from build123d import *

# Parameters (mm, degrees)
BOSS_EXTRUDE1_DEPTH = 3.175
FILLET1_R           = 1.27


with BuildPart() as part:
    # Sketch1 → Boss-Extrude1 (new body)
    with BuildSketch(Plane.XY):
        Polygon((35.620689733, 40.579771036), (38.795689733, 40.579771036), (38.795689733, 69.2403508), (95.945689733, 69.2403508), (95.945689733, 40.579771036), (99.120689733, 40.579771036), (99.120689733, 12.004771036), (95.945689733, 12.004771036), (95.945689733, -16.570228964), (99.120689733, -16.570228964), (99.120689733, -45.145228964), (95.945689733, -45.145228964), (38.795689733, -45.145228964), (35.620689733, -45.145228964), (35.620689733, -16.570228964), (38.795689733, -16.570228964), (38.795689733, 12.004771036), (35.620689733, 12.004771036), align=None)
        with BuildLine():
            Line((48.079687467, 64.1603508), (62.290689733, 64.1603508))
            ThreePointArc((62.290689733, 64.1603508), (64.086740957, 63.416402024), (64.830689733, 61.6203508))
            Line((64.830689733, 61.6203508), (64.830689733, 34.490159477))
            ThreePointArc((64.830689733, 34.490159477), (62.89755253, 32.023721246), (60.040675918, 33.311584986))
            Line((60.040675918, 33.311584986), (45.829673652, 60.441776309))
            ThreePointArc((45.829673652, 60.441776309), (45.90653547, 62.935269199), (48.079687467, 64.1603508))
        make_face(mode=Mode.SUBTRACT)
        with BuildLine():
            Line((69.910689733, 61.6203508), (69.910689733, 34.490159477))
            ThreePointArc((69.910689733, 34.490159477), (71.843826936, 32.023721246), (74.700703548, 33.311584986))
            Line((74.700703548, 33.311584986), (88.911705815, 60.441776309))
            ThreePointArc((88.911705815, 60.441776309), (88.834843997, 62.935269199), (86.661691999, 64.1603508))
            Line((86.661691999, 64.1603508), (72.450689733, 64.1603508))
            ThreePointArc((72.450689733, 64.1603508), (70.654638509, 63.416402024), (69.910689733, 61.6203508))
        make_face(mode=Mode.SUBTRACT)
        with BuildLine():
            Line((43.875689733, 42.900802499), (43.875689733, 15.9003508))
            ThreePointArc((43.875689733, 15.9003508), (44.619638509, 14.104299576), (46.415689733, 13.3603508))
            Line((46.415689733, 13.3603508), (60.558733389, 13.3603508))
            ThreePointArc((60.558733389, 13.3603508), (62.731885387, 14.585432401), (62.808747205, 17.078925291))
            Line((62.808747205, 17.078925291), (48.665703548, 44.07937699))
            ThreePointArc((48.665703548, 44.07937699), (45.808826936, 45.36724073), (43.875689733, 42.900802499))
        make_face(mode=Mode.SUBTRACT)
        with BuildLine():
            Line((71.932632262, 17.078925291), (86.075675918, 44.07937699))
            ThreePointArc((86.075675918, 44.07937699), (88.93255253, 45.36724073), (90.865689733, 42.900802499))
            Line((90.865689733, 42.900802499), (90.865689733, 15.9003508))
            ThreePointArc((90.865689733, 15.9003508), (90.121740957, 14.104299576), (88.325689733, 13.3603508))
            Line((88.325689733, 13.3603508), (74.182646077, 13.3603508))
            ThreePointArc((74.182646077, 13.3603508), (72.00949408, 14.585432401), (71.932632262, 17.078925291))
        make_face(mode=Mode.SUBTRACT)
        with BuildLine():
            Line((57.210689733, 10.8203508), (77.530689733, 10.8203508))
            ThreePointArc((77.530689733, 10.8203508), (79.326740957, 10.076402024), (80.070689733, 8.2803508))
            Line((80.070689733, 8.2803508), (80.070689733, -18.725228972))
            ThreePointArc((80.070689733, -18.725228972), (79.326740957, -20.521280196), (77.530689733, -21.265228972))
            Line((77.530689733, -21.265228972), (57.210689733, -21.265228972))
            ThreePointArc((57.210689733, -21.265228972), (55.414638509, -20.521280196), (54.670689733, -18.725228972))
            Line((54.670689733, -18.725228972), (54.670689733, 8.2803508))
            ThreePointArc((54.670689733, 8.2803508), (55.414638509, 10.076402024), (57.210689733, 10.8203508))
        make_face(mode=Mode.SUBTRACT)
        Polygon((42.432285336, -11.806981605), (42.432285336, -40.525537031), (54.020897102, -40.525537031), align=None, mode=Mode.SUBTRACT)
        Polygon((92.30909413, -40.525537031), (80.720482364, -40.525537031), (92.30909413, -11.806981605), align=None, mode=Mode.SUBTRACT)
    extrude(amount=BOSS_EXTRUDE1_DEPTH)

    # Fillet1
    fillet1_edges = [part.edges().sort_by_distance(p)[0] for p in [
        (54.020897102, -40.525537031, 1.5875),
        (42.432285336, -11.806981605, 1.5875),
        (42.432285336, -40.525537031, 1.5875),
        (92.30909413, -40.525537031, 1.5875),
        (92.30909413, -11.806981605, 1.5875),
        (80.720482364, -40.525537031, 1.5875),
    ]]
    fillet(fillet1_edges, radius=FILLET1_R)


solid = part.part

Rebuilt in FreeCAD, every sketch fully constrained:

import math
import FreeCAD as App
import Part
import Sketcher
from FreeCAD import Vector
Q = App.Units.Quantity


def edges_at(feature, points):
    """Names of the edges that pass closest to the given points."""
    edges = feature.Shape.Edges
    near = lambda p: min(range(len(edges)), key=lambda i: edges[i].distToShape(Part.Vertex(*p))[0])
    return sorted({f"Edge{near(p) + 1}" for p in points})

doc = App.newDocument("Part")
body = doc.addObject("PartDesign::Body", "Body")

sketch1 = body.newObject("Sketcher::SketchObject", "Sketch")
sketch1.AttachmentSupport = (doc.getObject("XY_Plane"), [""])
sketch1.MapMode = "FlatFace"
sketch1.addGeometry([
    Part.LineSegment(Vector(38.8, 40.6, 0), Vector(35.6, 40.6, 0)),
    Part.LineSegment(Vector(35.6, 40.6, 0), Vector(35.6, 12, 0)),
    Part.LineSegment(Vector(35.6, 12, 0), Vector(38.8, 12, 0)),
    Part.LineSegment(Vector(38.8, 12, 0), Vector(38.8, -16.6, 0)),
    Part.LineSegment(Vector(38.8, -16.6, 0), Vector(35.6, -16.6, 0)),
    Part.LineSegment(Vector(35.6, -16.6, 0), Vector(35.6, -45.1, 0)),
    Part.LineSegment(Vector(35.6, -45.1, 0), Vector(99.1, -45.1, 0)),
    Part.LineSegment(Vector(99.1, -45.1, 0), Vector(99.1, -16.6, 0)),
    Part.LineSegment(Vector(99.1, -16.6, 0), Vector(95.9, -16.6, 0)),
    Part.LineSegment(Vector(95.9, -16.6, 0), Vector(95.9, 12, 0)),
    Part.LineSegment(Vector(95.9, 12, 0), Vector(99.1, 12, 0)),
    Part.LineSegment(Vector(99.1, 12, 0), Vector(99.1, 40.6, 0)),
    Part.LineSegment(Vector(99.1, 40.6, 0), Vector(95.9, 40.6, 0)),
    Part.LineSegment(Vector(95.9, 40.6, 0), Vector(95.9, 69.2, 0)),
    Part.LineSegment(Vector(95.9, 69.2, 0), Vector(38.8, 69.2, 0)),
    Part.LineSegment(Vector(38.8, 69.2, 0), Vector(38.8, 40.6, 0)),
    Part.LineSegment(Vector(92.3, -40.5, 0), Vector(80.7, -40.5, 0)),
    Part.LineSegment(Vector(80.7, -40.5, 0), Vector(92.3, -11.8, 0)),
    Part.LineSegment(Vector(92.3, -11.8, 0), Vector(92.3, -40.5, 0)),
    Part.LineSegment(Vector(42.4, -11.8, 0), Vector(54, -40.5, 0)),
    Part.LineSegment(Vector(54, -40.5, 0), Vector(42.4, -40.5, 0)),
    Part.LineSegment(Vector(42.4, -40.5, 0), Vector(42.4, -11.8, 0)),
    Part.LineSegment(Vector(57.2, 10.8, 0), Vector(77.5, 10.8, 0)),
    Part.ArcOfCircle(Part.Circle(Vector(77.5, 8.3, 0), Vector(0, 0, 1), 2.5), math.radians(0), math.radians(90)),
    Part.LineSegment(Vector(80.1, 8.3, 0), Vector(80.1, -18.7, 0)),
    Part.ArcOfCircle(Part.Circle(Vector(77.5, -18.7, 0), Vector(0, 0, 1), 2.5), math.radians(-90), math.radians(0)),
    Part.LineSegment(Vector(77.5, -21.3, 0), Vector(57.2, -21.3, 0)),
    Part.ArcOfCircle(Part.Circle(Vector(57.2, -18.7, 0), Vector(0, 0, 1), 2.5), math.radians(-180), math.radians(-90)),
    Part.LineSegment(Vector(54.7, -18.7, 0), Vector(54.7, 8.3, 0)),
    Part.ArcOfCircle(Part.Circle(Vector(57.2, 8.3, 0), Vector(0, 0, 1), 2.5), math.radians(90), math.radians(180)),
    Part.LineSegment(Vector(71.9, 17.1, 0), Vector(86.1, 44.1, 0)),
    Part.ArcOfCircle(Part.Circle(Vector(88.3, 42.9, 0), Vector(0, 0, 1), 2.5), math.radians(0), math.radians(152)),
    Part.LineSegment(Vector(90.9, 42.9, 0), Vector(90.9, 15.9, 0)),
    Part.ArcOfCircle(Part.Circle(Vector(88.3, 15.9, 0), Vector(0, 0, 1), 2.5), math.radians(-90), math.radians(0)),
    Part.LineSegment(Vector(88.3, 13.4, 0), Vector(74.2, 13.4, 0)),
    Part.ArcOfCircle(Part.Circle(Vector(74.2, 15.9, 0), Vector(0, 0, 1), 2.5), math.radians(152), math.radians(270)),
    Part.ArcOfCircle(Part.Circle(Vector(72.5, 61.6, 0), Vector(0, 0, 1), 2.5), math.radians(90), math.radians(180)),
    Part.LineSegment(Vector(72.5, 64.2, 0), Vector(86.7, 64.2, 0)),
    Part.ArcOfCircle(Part.Circle(Vector(86.7, 61.6, 0), Vector(0, 0, 1), 2.5), math.radians(-28), math.radians(90)),
    Part.LineSegment(Vector(88.9, 60.4, 0), Vector(74.7, 33.3, 0)),
    Part.ArcOfCircle(Part.Circle(Vector(72.5, 34.5, 0), Vector(0, 0, 1), 2.5), math.radians(180), math.radians(332)),
    Part.LineSegment(Vector(69.9, 34.5, 0), Vector(69.9, 61.6, 0)),
    Part.ArcOfCircle(Part.Circle(Vector(46.4, 42.9, 0), Vector(0, 0, 1), 2.5), math.radians(28), math.radians(180)),
    Part.LineSegment(Vector(48.7, 44.1, 0), Vector(62.8, 17.1, 0)),
    Part.ArcOfCircle(Part.Circle(Vector(60.6, 15.9, 0), Vector(0, 0, 1), 2.5), math.radians(-90), math.radians(28)),
    Part.LineSegment(Vector(60.6, 13.4, 0), Vector(46.4, 13.4, 0)),
    Part.ArcOfCircle(Part.Circle(Vector(46.4, 15.9, 0), Vector(0, 0, 1), 2.5), math.radians(-180), math.radians(-90)),
    Part.LineSegment(Vector(43.9, 15.9, 0), Vector(43.9, 42.9, 0)),
    Part.LineSegment(Vector(48.1, 64.2, 0), Vector(62.3, 64.2, 0)),
    Part.ArcOfCircle(Part.Circle(Vector(62.3, 61.6, 0), Vector(0, 0, 1), 2.5), math.radians(0), math.radians(90)),
    Part.LineSegment(Vector(64.8, 61.6, 0), Vector(64.8, 34.5, 0)),
    Part.ArcOfCircle(Part.Circle(Vector(62.3, 34.5, 0), Vector(0, 0, 1), 2.5), math.radians(-152), math.radians(0)),
    Part.LineSegment(Vector(60, 33.3, 0), Vector(45.8, 60.4, 0)),
    Part.ArcOfCircle(Part.Circle(Vector(48.1, 61.6, 0), Vector(0, 0, 1), 2.5), math.radians(90), math.radians(208)),
], False)
sketch1.addConstraint([
    Sketcher.Constraint("Coincident", 0, 2, 1, 1),
    Sketcher.Constraint("Coincident", 1, 2, 2, 1),
    Sketcher.Constraint("Coincident", 2, 2, 3, 1),
    Sketcher.Constraint("Coincident", 3, 2, 4, 1),
    Sketcher.Constraint("Coincident", 4, 2, 5, 1),
    Sketcher.Constraint("Coincident", 5, 2, 6, 1),
    Sketcher.Constraint("Coincident", 6, 2, 7, 1),
    Sketcher.Constraint("Coincident", 7, 2, 8, 1),
    Sketcher.Constraint("Coincident", 8, 2, 9, 1),
    Sketcher.Constraint("Coincident", 9, 2, 10, 1),
    Sketcher.Constraint("Coincident", 10, 2, 11, 1),
    Sketcher.Constraint("Coincident", 11, 2, 12, 1),
    Sketcher.Constraint("Coincident", 12, 2, 13, 1),
    Sketcher.Constraint("Coincident", 13, 2, 14, 1),
    Sketcher.Constraint("Coincident", 14, 2, 15, 1),
    Sketcher.Constraint("Coincident", 15, 2, 0, 1),
    Sketcher.Constraint("Coincident", 16, 2, 17, 1),
    Sketcher.Constraint("Coincident", 17, 2, 18, 1),
    Sketcher.Constraint("Coincident", 18, 2, 16, 1),
    Sketcher.Constraint("Coincident", 19, 2, 20, 1),
    Sketcher.Constraint("Coincident", 20, 2, 21, 1),
    Sketcher.Constraint("Coincident", 21, 2, 19, 1),
    Sketcher.Constraint("Tangent", 22, 2, 23, 2),
    Sketcher.Constraint("Tangent", 23, 1, 24, 1),
    Sketcher.Constraint("Tangent", 24, 2, 25, 2),
    Sketcher.Constraint("Tangent", 25, 1, 26, 1),
    Sketcher.Constraint("Tangent", 26, 2, 27, 2),
    Sketcher.Constraint("Tangent", 27, 1, 28, 1),
    Sketcher.Constraint("Tangent", 28, 2, 29, 2),
    Sketcher.Constraint("Tangent", 29, 1, 22, 1),
    Sketcher.Constraint("Tangent", 30, 2, 31, 2),
    Sketcher.Constraint("Tangent", 31, 1, 32, 1),
    Sketcher.Constraint("Tangent", 32, 2, 33, 2),
    Sketcher.Constraint("Tangent", 33, 1, 34, 1),
    Sketcher.Constraint("Tangent", 34, 2, 35, 2),
    Sketcher.Constraint("Tangent", 35, 1, 30, 1),
    Sketcher.Constraint("Tangent", 36, 1, 37, 1),
    Sketcher.Constraint("Tangent", 37, 2, 38, 2),
    Sketcher.Constraint("Tangent", 38, 1, 39, 1),
    Sketcher.Constraint("Tangent", 39, 2, 40, 2),
    Sketcher.Constraint("Tangent", 40, 1, 41, 1),
    Sketcher.Constraint("Tangent", 41, 2, 36, 2),
    Sketcher.Constraint("Tangent", 42, 1, 43, 1),
    Sketcher.Constraint("Tangent", 43, 2, 44, 2),
    Sketcher.Constraint("Tangent", 44, 1, 45, 1),
    Sketcher.Constraint("Tangent", 45, 2, 46, 2),
    Sketcher.Constraint("Tangent", 46, 1, 47, 1),
    Sketcher.Constraint("Tangent", 47, 2, 42, 2),
    Sketcher.Constraint("Tangent", 48, 2, 49, 2),
    Sketcher.Constraint("Tangent", 49, 1, 50, 1),
    Sketcher.Constraint("Tangent", 50, 2, 51, 2),
    Sketcher.Constraint("Tangent", 51, 1, 52, 1),
    Sketcher.Constraint("Tangent", 52, 2, 53, 2),
    Sketcher.Constraint("Tangent", 53, 1, 48, 1),
    Sketcher.Constraint("Horizontal", 0),
    Sketcher.Constraint("Vertical", 1),
    Sketcher.Constraint("Horizontal", 2),
    Sketcher.Constraint("Vertical", 3),
    Sketcher.Constraint("Horizontal", 4),
    Sketcher.Constraint("Vertical", 5),
    Sketcher.Constraint("Horizontal", 6),
    Sketcher.Constraint("Vertical", 7),
    Sketcher.Constraint("Horizontal", 8),
    Sketcher.Constraint("Vertical", 9),
    Sketcher.Constraint("Horizontal", 10),
    Sketcher.Constraint("Vertical", 11),
    Sketcher.Constraint("Horizontal", 12),
    Sketcher.Constraint("Vertical", 13),
    Sketcher.Constraint("Horizontal", 14),
    Sketcher.Constraint("Vertical", 15),
    Sketcher.Constraint("Horizontal", 16),
    Sketcher.Constraint("Vertical", 18),
    Sketcher.Constraint("Horizontal", 20),
    Sketcher.Constraint("Vertical", 21),
    Sketcher.Constraint("Horizontal", 22),
    Sketcher.Constraint("Vertical", 24),
    Sketcher.Constraint("Horizontal", 26),
    Sketcher.Constraint("Vertical", 28),
    Sketcher.Constraint("Vertical", 32),
    Sketcher.Constraint("Horizontal", 34),
    Sketcher.Constraint("Horizontal", 37),
    Sketcher.Constraint("Vertical", 41),
    Sketcher.Constraint("Horizontal", 45),
    Sketcher.Constraint("Vertical", 47),
    Sketcher.Constraint("Horizontal", 48),
    Sketcher.Constraint("Vertical", 50),
    Sketcher.Constraint("Equal", 23, 25),
    Sketcher.Constraint("Equal", 25, 27),
    Sketcher.Constraint("Equal", 27, 29),
    Sketcher.Constraint("Equal", 29, 31),
    Sketcher.Constraint("Equal", 31, 33),
    Sketcher.Constraint("Equal", 33, 35),
    Sketcher.Constraint("Equal", 35, 36),
    Sketcher.Constraint("Equal", 36, 38),
    Sketcher.Constraint("Equal", 38, 40),
    Sketcher.Constraint("Equal", 40, 42),
    Sketcher.Constraint("Equal", 42, 44),
    Sketcher.Constraint("Equal", 44, 46),
    Sketcher.Constraint("Equal", 46, 49),
    Sketcher.Constraint("Equal", 49, 51),
    Sketcher.Constraint("Equal", 51, 53),
    Sketcher.Constraint("Parallel", 30, 39),
    Sketcher.Constraint("Parallel", 43, 52),
    Sketcher.Constraint("Horizontal", 31, 3, 42, 3),
    Sketcher.Constraint("Horizontal", 35, 3, 44, 3),
    Sketcher.Constraint("Horizontal", 38, 3, 49, 3),
    Sketcher.Constraint("Horizontal", 40, 3, 51, 3),
    Sketcher.Constraint("Horizontal", 4, 2, 7, 2),
    Sketcher.Constraint("Horizontal", 2, 2, 9, 2),
    Sketcher.Constraint("Horizontal", 0, 2, 11, 2),
    Sketcher.Constraint("Horizontal", 18, 2, 19, 2),
    Sketcher.Constraint("Horizontal", 17, 2, 21, 2),
    Sketcher.Constraint("Horizontal", 30, 2, 42, 1),
    Sketcher.Constraint("Vertical", 1, 2, 4, 2),
    Sketcher.Constraint("Vertical", 7, 2, 10, 2),
    Sketcher.Constraint("Vertical", 9, 2, 12, 2),
    Sketcher.Constraint("Vertical", 3, 2, 14, 2),
    Sketcher.Constraint("Equal", 4, 8),
    Sketcher.Constraint("Equal", 16, 20),
    Sketcher.Constraint("Equal", 1, 3),
    Sketcher.Constraint("Equal", 3, 5),
    Sketcher.Constraint("Radius", 23, Q("0.1 in")),
    Sketcher.Constraint("DistanceX", 6, 1, 6, 2, Q("2.5 in")),
    Sketcher.Constraint("DistanceX", 22, 1, 22, 2, Q("0.8 in")),
    Sketcher.Constraint("DistanceX", 14, 2, 14, 1, Q("2.25 in")),
    Sketcher.Constraint("DistanceY", 1, 2, 1, 1, Q("1.125 in")),
    Sketcher.Constraint("DistanceX", 16, 2, 16, 1, Q("11.588612 mm")),
    Sketcher.Constraint("DistanceY", 13, 1, 13, 2, Q("28.66058 mm")),
    Sketcher.Constraint("DistanceY", 24, 2, 24, 1, Q("27.00558 mm")),
    Sketcher.Constraint("DistanceY", 32, 2, 32, 1, Q("27.000452 mm")),
    Sketcher.Constraint("DistanceY", 41, 1, 41, 2, Q("27.130191 mm")),
    Sketcher.Constraint("DistanceX", 34, 2, 34, 1, Q("14.143044 mm")),
    Sketcher.Constraint("DistanceY", 18, 2, 18, 1, Q("28.718555 mm")),
    Sketcher.Constraint("DistanceX", -1, 1, 23, 3, Q("77.53069 mm")),
    Sketcher.Constraint("DistanceY", -1, 1, 23, 3, Q("8.280351 mm")),
    Sketcher.Constraint("DistanceX", -1, 1, 31, 3, Q("88.32569 mm")),
    Sketcher.Constraint("DistanceY", -1, 1, 33, 3, Q("15.900351 mm")),
    Sketcher.Constraint("DistanceX", -1, 1, 36, 3, Q("72.45069 mm")),
    Sketcher.Constraint("DistanceY", -1, 1, 36, 3, Q("61.620351 mm")),
    Sketcher.Constraint("DistanceX", -1, 1, 42, 3, Q("46.41569 mm")),
    Sketcher.Constraint("DistanceX", -1, 1, 49, 3, Q("62.29069 mm")),
    Sketcher.Constraint("DistanceX", -1, 1, 0, 2, Q("35.62069 mm")),
    Sketcher.Constraint("DistanceY", -1, 1, 0, 2, Q("40.579771 mm")),
    Sketcher.Constraint("DistanceY", 17, 2, -1, 1, Q("11.806982 mm")),
    Sketcher.Constraint("DistanceX", -1, 1, 16, 2, Q("80.720482 mm")),
    Sketcher.Constraint("DistanceX", -1, 1, 19, 2, Q("54.020897 mm")),
])
pad1 = body.newObject("PartDesign::Pad", "Pad")
pad1.Profile = sketch1
pad1.Length = Q("0.125 in")
doc.recompute()

fillet = body.newObject("PartDesign::Fillet", "Fillet")
fillet.Base = (pad1, edges_at(pad1, [
    (54.021, -40.526, 1.587),
    (42.432, -11.807, 1.587),
    (42.432, -40.526, 1.587),
    (92.309, -40.526, 1.587),
    (92.309, -11.807, 1.587),
    (80.72, -40.526, 1.587),
]))
fillet.Radius = Q("0.05 in")

doc.recompute()
